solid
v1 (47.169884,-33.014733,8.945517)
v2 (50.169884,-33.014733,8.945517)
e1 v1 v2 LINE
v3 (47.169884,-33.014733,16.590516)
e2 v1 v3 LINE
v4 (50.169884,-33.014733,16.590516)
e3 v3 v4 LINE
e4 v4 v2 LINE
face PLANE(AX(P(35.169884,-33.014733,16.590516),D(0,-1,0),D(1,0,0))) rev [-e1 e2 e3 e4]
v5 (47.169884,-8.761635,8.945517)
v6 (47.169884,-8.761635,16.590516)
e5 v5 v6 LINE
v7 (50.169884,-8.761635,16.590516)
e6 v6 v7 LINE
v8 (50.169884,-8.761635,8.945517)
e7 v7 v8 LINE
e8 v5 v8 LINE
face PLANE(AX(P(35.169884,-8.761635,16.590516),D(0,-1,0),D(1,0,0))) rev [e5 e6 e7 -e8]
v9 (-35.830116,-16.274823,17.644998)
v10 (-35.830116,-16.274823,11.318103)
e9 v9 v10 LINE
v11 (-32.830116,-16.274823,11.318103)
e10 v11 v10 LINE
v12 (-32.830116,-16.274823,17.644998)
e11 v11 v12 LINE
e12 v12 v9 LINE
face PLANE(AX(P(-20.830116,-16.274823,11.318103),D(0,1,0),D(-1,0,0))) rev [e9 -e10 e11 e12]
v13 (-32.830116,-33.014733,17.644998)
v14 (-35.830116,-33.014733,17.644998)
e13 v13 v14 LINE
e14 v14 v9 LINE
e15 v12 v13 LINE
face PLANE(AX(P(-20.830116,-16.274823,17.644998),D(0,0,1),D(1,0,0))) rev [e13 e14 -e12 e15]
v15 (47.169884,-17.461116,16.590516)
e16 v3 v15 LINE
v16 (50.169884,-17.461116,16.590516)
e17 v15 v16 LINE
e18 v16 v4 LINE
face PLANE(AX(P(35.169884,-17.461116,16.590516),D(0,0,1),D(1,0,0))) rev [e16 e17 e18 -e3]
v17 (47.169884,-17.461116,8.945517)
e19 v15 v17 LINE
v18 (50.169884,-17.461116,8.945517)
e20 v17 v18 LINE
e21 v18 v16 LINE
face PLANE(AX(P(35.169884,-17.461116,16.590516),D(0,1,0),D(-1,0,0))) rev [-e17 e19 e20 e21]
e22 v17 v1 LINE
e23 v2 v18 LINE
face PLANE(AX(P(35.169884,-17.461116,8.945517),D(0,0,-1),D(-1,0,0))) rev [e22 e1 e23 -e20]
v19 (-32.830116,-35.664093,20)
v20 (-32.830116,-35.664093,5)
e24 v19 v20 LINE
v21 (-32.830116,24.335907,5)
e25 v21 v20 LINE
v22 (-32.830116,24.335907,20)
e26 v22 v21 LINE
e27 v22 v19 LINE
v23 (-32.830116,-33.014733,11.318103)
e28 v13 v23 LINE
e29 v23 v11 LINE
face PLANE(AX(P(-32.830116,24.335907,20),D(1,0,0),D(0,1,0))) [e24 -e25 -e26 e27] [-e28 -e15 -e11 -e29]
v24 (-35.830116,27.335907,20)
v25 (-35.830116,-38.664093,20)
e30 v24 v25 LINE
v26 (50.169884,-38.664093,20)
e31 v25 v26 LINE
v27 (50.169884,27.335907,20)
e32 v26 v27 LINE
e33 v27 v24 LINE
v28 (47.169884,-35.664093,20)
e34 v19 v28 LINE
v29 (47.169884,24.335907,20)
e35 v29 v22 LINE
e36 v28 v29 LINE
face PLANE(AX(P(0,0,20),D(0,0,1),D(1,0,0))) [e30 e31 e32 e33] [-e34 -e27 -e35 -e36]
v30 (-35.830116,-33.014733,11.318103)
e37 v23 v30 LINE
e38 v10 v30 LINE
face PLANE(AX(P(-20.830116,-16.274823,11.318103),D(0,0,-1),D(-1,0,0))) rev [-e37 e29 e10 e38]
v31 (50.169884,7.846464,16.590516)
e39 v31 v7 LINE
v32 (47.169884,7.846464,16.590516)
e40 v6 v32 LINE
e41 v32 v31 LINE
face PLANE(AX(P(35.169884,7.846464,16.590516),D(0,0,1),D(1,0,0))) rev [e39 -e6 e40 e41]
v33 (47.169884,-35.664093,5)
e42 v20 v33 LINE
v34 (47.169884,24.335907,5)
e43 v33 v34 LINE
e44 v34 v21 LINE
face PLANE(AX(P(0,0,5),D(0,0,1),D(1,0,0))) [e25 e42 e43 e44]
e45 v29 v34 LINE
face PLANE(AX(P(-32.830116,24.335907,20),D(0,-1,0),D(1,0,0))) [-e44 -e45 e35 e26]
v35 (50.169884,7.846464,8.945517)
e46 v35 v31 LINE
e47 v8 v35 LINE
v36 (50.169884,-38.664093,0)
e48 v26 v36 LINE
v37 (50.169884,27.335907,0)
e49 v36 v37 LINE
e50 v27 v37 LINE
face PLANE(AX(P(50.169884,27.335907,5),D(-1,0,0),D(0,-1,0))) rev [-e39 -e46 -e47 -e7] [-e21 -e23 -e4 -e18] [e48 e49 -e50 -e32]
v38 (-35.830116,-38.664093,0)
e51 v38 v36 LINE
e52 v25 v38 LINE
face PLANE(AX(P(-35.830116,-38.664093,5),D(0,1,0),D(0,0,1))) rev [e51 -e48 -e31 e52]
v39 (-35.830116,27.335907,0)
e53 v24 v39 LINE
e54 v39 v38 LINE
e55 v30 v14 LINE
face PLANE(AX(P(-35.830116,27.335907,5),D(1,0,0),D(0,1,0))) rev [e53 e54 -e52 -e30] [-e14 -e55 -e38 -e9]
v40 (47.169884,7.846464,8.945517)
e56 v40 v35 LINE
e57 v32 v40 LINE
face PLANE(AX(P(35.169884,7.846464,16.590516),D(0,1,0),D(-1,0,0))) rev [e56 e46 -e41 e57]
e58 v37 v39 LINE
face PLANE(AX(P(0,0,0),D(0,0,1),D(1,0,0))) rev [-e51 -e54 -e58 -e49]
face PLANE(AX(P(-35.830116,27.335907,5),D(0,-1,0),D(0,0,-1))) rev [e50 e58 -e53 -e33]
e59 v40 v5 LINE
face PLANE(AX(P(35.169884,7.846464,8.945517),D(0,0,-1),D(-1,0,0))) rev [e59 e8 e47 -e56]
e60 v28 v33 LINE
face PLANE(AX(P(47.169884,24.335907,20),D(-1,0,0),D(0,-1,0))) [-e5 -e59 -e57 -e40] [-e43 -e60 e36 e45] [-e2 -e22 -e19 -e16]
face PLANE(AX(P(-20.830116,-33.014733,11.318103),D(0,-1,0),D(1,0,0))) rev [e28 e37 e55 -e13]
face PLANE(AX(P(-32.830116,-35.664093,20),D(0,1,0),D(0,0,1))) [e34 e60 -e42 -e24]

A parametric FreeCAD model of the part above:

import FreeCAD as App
import Part
import Sketcher
from FreeCAD import Vector
Q = App.Units.Quantity


def add_polygon(sketch, points):
    """Adds a closed chain of lines whose ends are joined by coincident constraints."""
    first, n = sketch.GeometryCount, len(points)
    for a, b in zip(points, points[1:] + points[:1]):
        sketch.addGeometry(Part.LineSegment(App.Vector(*a, 0), App.Vector(*b, 0)), False)
    for i in range(n):
        sketch.addConstraint(Sketcher.Constraint("Coincident", first + i, 2, first + (i + 1) % n, 1))

doc = App.newDocument("Part")
params = doc.addObject("Spreadsheet::Sheet", "Params")
for row, (alias, value) in enumerate([
    ("sketch1_width", "86 mm"),
    ("sketch1_height", "66 mm"),
    ("pad1_length", "5 mm"),
    ("sketch2_width", "86 mm"),
    ("sketch2_width2", "80 mm"),
    ("sketch2_height", "66 mm"),
    ("sketch2_height2", "60 mm"),
    ("pad2_length", "15 mm"),
    ("pocket1_length", "15 mm"),
    ("pocket2_length", "15 mm"),
], start=1):
    params.set(f"A{row}", alias)
    params.set(f"B{row}", "=" + value)
    params.setAlias(f"B{row}", alias)

body = doc.addObject("PartDesign::Body", "Body")

# Sketch on XY plane
sketch1 = body.newObject("Sketcher::SketchObject", "Sketch")
sketch1.AttachmentSupport = (doc.getObject("XY_Plane"), [""])
sketch1.MapMode = "FlatFace"
add_polygon(sketch1, [(-35.830116, 27.335907), (-35.830116, -38.664093), (50.169884, -38.664093), (50.169884, 27.335907)])  # lines 0-3
sketch1.addConstraint([
    Sketcher.Constraint("Vertical", 0),
    Sketcher.Constraint("Horizontal", 1),
    Sketcher.Constraint("Vertical", 2),
    Sketcher.Constraint("Horizontal", 3),
    Sketcher.Constraint("DistanceX", 1, 1, 1, 2, Q("86 mm")),
    Sketcher.Constraint("DistanceY", 0, 2, 0, 1, Q("66 mm")),
    Sketcher.Constraint("DistanceX", 0, 2, -1, 1, Q("35.830116 mm")),
    Sketcher.Constraint("DistanceY", 0, 2, -1, 1, Q("38.664093 mm")),
])
sketch1.setExpression("Constraints[8]", "Params.sketch1_width")
sketch1.setExpression("Constraints[9]", "Params.sketch1_height")
pad1 = body.newObject("PartDesign::Pad", "Pad")
pad1.Profile = sketch1
pad1.setExpression("Length", "Params.pad1_length")

# Sketch on XY plane
sketch2 = body.newObject("Sketcher::SketchObject", "Sketch001")
sketch2.AttachmentSupport = (doc.getObject("XY_Plane"), [""])
sketch2.MapMode = "FlatFace"
sketch2.AttachmentOffset = App.Placement(Vector(0, 0, 5), App.Rotation())
add_polygon(sketch2, [(-35.830116, 27.335907), (-35.830116, -38.664093), (50.169884, -38.664093), (50.169884, 27.335907)])  # lines 0-3
add_polygon(sketch2, [(47.169884, -35.664093), (-32.830116, -35.664093), (-32.830116, 24.335907), (47.169884, 24.335907)])  # lines 4-7
sketch2.addConstraint([
    Sketcher.Constraint("Vertical", 0),
    Sketcher.Constraint("Horizontal", 1),
    Sketcher.Constraint("Vertical", 2),
    Sketcher.Constraint("Horizontal", 3),
    Sketcher.Constraint("Horizontal", 4),
    Sketcher.Constraint("Vertical", 5),
    Sketcher.Constraint("Horizontal", 6),
    Sketcher.Constraint("Vertical", 7),
    Sketcher.Constraint("DistanceX", 1, 1, 1, 2, Q("86 mm")),
    Sketcher.Constraint("DistanceX", 4, 2, 4, 1, Q("80 mm")),
    Sketcher.Constraint("DistanceY", 0, 2, 0, 1, Q("66 mm")),
    Sketcher.Constraint("DistanceY", 5, 1, 5, 2, Q("60 mm")),
    Sketcher.Constraint("DistanceX", 0, 2, 4, 2, Q("3 mm")),
    Sketcher.Constraint("DistanceY", 0, 2, 4, 2, Q("3 mm")),
    Sketcher.Constraint("DistanceX", 0, 2, -1, 1, Q("35.830116 mm")),
    Sketcher.Constraint("DistanceY", 0, 2, -1, 1, Q("38.664093 mm")),
])
sketch2.setExpression("Constraints[16]", "Params.sketch2_width")
sketch2.setExpression("Constraints[17]", "Params.sketch2_width2")
sketch2.setExpression("Constraints[18]", "Params.sketch2_height")
sketch2.setExpression("Constraints[19]", "Params.sketch2_height2")
pad2 = body.newObject("PartDesign::Pad", "Pad001")
pad2.Profile = sketch2
pad2.setExpression("Length", "Params.pad2_length")

# Sketch on YZ plane
sketch3 = body.newObject("Sketcher::SketchObject", "Sketch002")
sketch3.AttachmentSupport = (doc.getObject("YZ_Plane"), [""])
sketch3.MapMode = "FlatFace"
sketch3.AttachmentOffset = App.Placement(Vector(0, 0, -35.830116), App.Rotation())
add_polygon(sketch3, [(-16.274823, 11.318103), (-33.014733, 11.318103), (-33.014733, 17.644998), (-16.274823, 17.644998)])  # lines 0-3
sketch3.addConstraint([
    Sketcher.Constraint("Horizontal", 0),
    Sketcher.Constraint("Vertical", 1),
    Sketcher.Constraint("Horizontal", 2),
    Sketcher.Constraint("Vertical", 3),
    Sketcher.Constraint("DistanceY", -1, 1, 1, 2, Q("17.644998 mm")),
    Sketcher.Constraint("DistanceX", 0, 2, 0, 1, Q("16.73991 mm")),
    Sketcher.Constraint("DistanceY", 1, 1, 1, 2, Q("6.326895 mm")),
    Sketcher.Constraint("DistanceX", 0, 2, -1, 1, Q("33.014733 mm")),
])
pocket1 = body.newObject("PartDesign::Pocket", "Pocket")
pocket1.Profile = sketch3
pocket1.setExpression("Length", "Params.pocket1_length")
pocket1.Reversed = True

# Sketch on YZ plane
sketch4 = body.newObject("Sketcher::SketchObject", "Sketch003")
sketch4.AttachmentSupport = (doc.getObject("YZ_Plane"), [""])
sketch4.MapMode = "FlatFace"
sketch4.AttachmentOffset = App.Placement(Vector(0, 0, 50.169884), App.Rotation())
add_polygon(sketch4, [(-17.461116, 16.590516), (-33.014733, 16.590516), (-33.014733, 8.945517), (-17.461116, 8.945517)])  # lines 0-3
add_polygon(sketch4, [(7.846464, 16.590516), (-8.761635, 16.590516), (-8.761635, 8.945517), (7.846464, 8.945517)])  # lines 4-7
sketch4.addConstraint([
    Sketcher.Constraint("Horizontal", 0),
    Sketcher.Constraint("Vertical", 1),
    Sketcher.Constraint("Horizontal", 2),
    Sketcher.Constraint("Vertical", 3),
    Sketcher.Constraint("Horizontal", 4),
    Sketcher.Constraint("Vertical", 5),
    Sketcher.Constraint("Horizontal", 6),
    Sketcher.Constraint("Vertical", 7),
    Sketcher.Constraint("Horizontal", 3, 2, 4, 2),
    Sketcher.Constraint("Horizontal", 2, 2, 5, 2),
    Sketcher.Constraint("DistanceY", 1, 2, 1, 1, Q("7.644998 mm")),
    Sketcher.Constraint("DistanceX", 4, 2, 4, 1, Q("16.608099 mm")),
    Sketcher.Constraint("DistanceX", 0, 2, 0, 1, Q("15.553617 mm")),
    Sketcher.Constraint("DistanceX", 3, 2, 4, 2, Q("8.699481 mm")),
    Sketcher.Constraint("DistanceX", 0, 2, -1, 1, Q("33.014733 mm")),
    Sketcher.Constraint("DistanceY", -1, 1, 0, 2, Q("16.590516 mm")),
])
pocket2 = body.newObject("PartDesign::Pocket", "Pocket001")
pocket2.Profile = sketch4
pocket2.setExpression("Length", "Params.pocket2_length")

doc.recompute()
